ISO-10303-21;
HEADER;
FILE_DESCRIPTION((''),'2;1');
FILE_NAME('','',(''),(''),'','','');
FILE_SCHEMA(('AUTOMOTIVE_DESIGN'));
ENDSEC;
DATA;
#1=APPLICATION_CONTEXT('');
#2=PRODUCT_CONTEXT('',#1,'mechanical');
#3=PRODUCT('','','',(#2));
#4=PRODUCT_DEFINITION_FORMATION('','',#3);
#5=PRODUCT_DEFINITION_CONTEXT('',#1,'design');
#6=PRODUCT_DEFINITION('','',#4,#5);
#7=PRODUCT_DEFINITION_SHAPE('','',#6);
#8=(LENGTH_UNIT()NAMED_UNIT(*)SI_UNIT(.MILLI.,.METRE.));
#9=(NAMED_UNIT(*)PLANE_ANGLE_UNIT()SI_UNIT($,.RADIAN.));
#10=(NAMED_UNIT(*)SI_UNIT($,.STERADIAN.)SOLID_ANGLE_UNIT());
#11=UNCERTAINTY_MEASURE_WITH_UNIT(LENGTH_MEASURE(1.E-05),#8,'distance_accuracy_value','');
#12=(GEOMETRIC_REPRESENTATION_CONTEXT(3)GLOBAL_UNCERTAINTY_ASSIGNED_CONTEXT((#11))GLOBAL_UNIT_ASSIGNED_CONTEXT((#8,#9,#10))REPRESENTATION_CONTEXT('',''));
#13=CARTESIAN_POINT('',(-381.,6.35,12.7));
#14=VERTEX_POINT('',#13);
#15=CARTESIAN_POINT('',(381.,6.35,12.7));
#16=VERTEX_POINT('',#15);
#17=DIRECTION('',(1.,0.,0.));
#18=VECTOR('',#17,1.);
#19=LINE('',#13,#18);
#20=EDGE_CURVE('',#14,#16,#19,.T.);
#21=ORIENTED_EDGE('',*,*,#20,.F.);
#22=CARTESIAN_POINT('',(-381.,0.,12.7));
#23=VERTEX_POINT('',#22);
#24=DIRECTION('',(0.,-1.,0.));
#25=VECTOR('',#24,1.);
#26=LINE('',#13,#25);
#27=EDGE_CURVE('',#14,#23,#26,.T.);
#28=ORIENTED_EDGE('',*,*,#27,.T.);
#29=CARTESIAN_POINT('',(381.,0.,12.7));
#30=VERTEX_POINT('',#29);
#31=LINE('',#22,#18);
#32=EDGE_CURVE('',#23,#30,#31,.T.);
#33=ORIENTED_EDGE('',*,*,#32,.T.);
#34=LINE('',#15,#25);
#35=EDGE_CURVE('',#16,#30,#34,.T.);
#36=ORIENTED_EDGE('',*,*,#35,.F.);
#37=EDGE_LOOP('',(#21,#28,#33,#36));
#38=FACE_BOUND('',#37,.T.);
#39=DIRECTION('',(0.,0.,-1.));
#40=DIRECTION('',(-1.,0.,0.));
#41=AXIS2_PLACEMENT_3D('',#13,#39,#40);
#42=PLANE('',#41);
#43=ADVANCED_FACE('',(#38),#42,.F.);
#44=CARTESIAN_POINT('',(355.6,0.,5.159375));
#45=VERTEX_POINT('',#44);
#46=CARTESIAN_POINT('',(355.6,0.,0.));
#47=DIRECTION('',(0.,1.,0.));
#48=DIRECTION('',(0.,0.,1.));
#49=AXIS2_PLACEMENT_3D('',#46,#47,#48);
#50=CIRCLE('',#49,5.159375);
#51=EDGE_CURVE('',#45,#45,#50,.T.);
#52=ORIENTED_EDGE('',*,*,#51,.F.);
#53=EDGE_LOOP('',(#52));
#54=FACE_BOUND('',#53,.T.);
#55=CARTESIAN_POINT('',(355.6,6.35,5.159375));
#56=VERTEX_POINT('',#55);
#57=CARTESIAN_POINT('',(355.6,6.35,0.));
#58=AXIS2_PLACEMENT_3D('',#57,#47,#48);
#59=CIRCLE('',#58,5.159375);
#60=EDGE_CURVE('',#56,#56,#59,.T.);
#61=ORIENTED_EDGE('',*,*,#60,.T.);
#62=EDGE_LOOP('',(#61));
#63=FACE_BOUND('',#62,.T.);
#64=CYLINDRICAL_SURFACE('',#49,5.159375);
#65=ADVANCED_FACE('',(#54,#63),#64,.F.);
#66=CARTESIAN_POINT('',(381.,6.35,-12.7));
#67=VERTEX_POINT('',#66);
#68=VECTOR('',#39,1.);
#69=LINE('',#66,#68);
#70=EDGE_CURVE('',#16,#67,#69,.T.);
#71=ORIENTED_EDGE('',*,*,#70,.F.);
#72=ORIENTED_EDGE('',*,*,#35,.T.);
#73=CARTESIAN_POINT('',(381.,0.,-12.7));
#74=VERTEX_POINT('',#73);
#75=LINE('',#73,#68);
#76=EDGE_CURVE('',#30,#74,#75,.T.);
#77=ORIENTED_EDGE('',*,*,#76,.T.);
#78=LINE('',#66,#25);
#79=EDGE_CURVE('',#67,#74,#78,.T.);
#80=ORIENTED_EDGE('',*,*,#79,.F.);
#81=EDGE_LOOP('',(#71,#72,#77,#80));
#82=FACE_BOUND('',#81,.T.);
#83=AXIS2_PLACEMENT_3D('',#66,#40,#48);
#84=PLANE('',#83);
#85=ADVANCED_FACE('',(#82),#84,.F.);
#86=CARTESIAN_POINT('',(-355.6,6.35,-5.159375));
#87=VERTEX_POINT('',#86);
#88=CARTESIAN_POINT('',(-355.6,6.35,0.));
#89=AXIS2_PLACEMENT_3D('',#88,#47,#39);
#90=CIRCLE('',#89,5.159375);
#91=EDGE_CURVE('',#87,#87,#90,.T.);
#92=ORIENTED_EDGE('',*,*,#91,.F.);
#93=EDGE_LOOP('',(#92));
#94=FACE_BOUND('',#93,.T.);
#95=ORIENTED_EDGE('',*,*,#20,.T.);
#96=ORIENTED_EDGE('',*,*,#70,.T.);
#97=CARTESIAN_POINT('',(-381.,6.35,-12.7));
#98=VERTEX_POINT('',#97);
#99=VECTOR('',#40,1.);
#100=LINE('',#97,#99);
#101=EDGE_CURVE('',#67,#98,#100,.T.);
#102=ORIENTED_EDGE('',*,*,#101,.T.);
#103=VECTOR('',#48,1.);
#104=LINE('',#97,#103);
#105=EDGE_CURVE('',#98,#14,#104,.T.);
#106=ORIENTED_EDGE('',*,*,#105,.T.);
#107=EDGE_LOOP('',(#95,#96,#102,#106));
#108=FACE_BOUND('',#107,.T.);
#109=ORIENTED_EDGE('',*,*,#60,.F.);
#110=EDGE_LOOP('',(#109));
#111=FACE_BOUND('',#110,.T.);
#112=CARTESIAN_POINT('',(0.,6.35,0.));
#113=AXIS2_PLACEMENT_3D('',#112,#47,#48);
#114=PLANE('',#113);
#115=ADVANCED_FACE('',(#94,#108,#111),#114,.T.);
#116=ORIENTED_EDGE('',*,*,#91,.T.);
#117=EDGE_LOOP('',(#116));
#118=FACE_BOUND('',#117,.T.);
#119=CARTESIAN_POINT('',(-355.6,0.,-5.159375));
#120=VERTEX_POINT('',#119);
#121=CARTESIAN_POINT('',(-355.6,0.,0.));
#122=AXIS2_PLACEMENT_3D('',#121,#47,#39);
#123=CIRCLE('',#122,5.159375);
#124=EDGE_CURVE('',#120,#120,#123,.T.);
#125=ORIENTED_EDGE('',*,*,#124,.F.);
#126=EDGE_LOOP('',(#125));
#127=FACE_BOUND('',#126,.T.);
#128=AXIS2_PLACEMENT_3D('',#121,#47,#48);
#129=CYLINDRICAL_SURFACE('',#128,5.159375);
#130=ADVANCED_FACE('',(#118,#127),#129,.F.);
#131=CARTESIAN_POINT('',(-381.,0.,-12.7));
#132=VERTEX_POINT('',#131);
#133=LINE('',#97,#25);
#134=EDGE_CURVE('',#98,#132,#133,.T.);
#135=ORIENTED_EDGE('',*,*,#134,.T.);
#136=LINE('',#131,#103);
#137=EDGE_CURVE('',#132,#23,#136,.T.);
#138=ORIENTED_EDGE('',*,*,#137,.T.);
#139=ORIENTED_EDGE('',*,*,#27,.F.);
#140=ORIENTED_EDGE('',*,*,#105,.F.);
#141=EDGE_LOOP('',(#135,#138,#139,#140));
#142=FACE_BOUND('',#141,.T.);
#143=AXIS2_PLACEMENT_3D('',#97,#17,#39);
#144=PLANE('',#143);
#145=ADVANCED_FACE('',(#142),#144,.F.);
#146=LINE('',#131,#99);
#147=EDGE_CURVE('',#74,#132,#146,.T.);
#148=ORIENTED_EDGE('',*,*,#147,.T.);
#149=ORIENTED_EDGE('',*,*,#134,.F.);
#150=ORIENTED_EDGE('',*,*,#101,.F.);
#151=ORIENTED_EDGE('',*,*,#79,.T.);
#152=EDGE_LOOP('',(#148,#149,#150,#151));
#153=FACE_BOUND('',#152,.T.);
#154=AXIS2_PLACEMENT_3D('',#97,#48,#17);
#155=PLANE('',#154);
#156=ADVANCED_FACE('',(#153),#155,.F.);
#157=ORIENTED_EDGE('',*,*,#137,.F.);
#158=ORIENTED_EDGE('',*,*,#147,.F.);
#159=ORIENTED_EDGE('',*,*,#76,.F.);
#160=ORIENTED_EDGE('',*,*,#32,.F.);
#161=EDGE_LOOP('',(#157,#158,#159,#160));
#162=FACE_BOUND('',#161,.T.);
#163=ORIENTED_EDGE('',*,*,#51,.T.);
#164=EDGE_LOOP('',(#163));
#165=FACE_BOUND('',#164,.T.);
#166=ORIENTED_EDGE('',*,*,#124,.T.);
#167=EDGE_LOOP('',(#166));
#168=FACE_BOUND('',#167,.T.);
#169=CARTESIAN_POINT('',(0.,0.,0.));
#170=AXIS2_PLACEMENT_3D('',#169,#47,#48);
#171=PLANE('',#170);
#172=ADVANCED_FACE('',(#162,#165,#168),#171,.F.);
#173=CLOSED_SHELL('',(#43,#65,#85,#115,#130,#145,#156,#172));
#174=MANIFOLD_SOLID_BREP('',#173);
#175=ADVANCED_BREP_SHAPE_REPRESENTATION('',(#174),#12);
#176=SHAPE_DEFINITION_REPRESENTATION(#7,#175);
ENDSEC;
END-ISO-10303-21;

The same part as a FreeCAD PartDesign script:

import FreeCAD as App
import Part
import Sketcher

V = App.Vector
Q = App.Units.Quantity


def add_polygon(sketch, points):
    """Adds a closed chain of lines whose ends are joined by coincident constraints."""
    first, n = sketch.GeometryCount, len(points)
    for a, b in zip(points, points[1:] + points[:1]):
        sketch.addGeometry(Part.LineSegment(App.Vector(*a, 0), App.Vector(*b, 0)), False)
    for i in range(n):
        sketch.addConstraint(Sketcher.Constraint("Coincident", first + i, 2, first + (i + 1) % n, 1))

doc = App.newDocument("Part")
body = doc.addObject("PartDesign::Body", "Body")

sketch1 = body.newObject("Sketcher::SketchObject", "Sketch")
sketch1.AttachmentSupport = (doc.getObject("XZ_Plane"), [""])
sketch1.MapMode = "FlatFace"
add_polygon(sketch1, [(-381, -13), (-381, 13), (381, 13), (381, -13)])
sketch1.addConstraint([
    Sketcher.Constraint("Vertical", 0),
    Sketcher.Constraint("Horizontal", 1),
    Sketcher.Constraint("Vertical", 2),
    Sketcher.Constraint("Horizontal", 3),
    Sketcher.Constraint("Symmetric", 0, 2, 2, 2, -1, 1),
    Sketcher.Constraint("DistanceX", 1, 1, 1, 2, Q("30 in")),
    Sketcher.Constraint("DistanceY", 0, 1, 0, 2, Q("1 in")),
])
pad1 = body.newObject("PartDesign::Pad", "Pad")
pad1.Profile = sketch1
pad1.Length = Q("0.25 in")
pad1.Reversed = True

sketch2 = body.newObject("Sketcher::SketchObject", "Sketch001")
sketch2.AttachmentSupport = (doc.getObject("XZ_Plane"), [""])
sketch2.MapMode = "FlatFace"
sketch2.AttachmentOffset = App.Placement(V(0, 0, -0.25 * 25.4), App.Rotation())
sketch2.addGeometry([
    Part.Circle(V(356, 0, 0), V(0, 0, 1), 5),
    Part.Circle(V(-356, 0, 0), V(0, 0, 1), 5),
], False)
sketch2.addConstraint([
    Sketcher.Constraint("Equal", 0, 1),
    Sketcher.Constraint("Symmetric", 0, 3, 1, 3, -1, 1),
    Sketcher.Constraint("PointOnObject", 0, 3, -1),
    Sketcher.Constraint("Diameter", 0, Q("0.40625 in")),
    Sketcher.Constraint("DistanceX", -1, 1, 0, 3, Q("14 in")),
])
pocket1 = body.newObject("PartDesign::Pocket", "Pocket")
pocket1.Profile = sketch2
pocket1.Type = "ThroughAll"
pocket1.Reversed = True

doc.recompute()
